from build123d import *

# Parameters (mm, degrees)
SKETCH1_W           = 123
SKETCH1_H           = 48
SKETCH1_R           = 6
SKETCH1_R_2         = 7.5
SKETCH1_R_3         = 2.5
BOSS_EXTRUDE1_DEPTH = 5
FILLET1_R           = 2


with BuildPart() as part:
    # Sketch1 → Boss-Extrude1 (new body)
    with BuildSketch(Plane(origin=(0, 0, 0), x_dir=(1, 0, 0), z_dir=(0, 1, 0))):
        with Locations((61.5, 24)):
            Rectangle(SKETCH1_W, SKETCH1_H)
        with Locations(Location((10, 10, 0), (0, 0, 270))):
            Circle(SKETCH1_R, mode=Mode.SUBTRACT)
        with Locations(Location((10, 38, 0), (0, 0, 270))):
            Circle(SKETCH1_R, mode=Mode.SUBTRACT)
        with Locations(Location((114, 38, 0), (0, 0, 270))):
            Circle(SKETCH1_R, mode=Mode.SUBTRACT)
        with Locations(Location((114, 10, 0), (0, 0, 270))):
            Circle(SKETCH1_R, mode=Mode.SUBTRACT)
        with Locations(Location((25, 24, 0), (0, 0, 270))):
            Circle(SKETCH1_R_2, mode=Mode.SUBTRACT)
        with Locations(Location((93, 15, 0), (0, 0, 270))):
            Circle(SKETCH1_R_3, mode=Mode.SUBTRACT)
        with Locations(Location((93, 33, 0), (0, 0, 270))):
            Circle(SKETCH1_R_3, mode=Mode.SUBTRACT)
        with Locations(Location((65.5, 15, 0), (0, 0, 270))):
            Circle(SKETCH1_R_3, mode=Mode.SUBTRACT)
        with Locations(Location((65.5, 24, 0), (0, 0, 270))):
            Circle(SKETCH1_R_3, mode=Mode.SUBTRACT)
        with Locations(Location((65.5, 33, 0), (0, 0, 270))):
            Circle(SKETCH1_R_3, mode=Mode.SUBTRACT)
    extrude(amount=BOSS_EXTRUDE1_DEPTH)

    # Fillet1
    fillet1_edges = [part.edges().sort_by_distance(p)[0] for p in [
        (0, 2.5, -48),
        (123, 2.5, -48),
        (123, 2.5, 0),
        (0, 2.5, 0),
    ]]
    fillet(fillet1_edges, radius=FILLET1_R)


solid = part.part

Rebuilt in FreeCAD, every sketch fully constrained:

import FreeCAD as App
import Part
import Sketcher

V = App.Vector


def edges_at(feature, points):
    """Names of the edges that pass closest to the given points."""
    edges = feature.Shape.Edges
    near = lambda p: min(range(len(edges)), key=lambda i: edges[i].distToShape(Part.Vertex(*p))[0])
    return sorted({f"Edge{near(p) + 1}" for p in points})

doc = App.newDocument("Part")
body = doc.addObject("PartDesign::Body", "Body")

sketch1 = body.newObject("Sketcher::SketchObject", "Sketch")
sketch1.AttachmentSupport = (doc.getObject("XZ_Plane"), [""])
sketch1.MapMode = "FlatFace"
sketch1.addGeometry(Part.LineSegment(V(0, -48, 0), V(0, 0, 0)), False)
sketch1.addGeometry(Part.LineSegment(V(0, 0, 0), V(123, 0, 0)), False)
sketch1.addGeometry(Part.LineSegment(V(123, 0, 0), V(123, -48, 0)), False)
sketch1.addGeometry(Part.LineSegment(V(123, -48, 0), V(0, -48, 0)), False)
sketch1.addGeometry(Part.Circle(V(10, -10, 0), V(0, 0, 1), 6), False)
sketch1.addGeometry(Part.Circle(V(114, -10, 0), V(0, 0, 1), 6), False)
sketch1.addGeometry(Part.Circle(V(65.5, -15, 0), V(0, 0, 1), 2.5), False)
sketch1.addGeometry(Part.Circle(V(93, -15, 0), V(0, 0, 1), 2.5), False)
sketch1.addGeometry(Part.Circle(V(25, -24, 0), V(0, 0, 1), 7.5), False)
sketch1.addGeometry(Part.Circle(V(10, -38, 0), V(0, 0, 1), 6), False)
sketch1.addGeometry(Part.Circle(V(65.5, -24, 0), V(0, 0, 1), 2.5), False)
sketch1.addGeometry(Part.Circle(V(65.5, -33, 0), V(0, 0, 1), 2.5), False)
sketch1.addGeometry(Part.Circle(V(93, -33, 0), V(0, 0, 1), 2.5), False)
sketch1.addGeometry(Part.Circle(V(114, -38, 0), V(0, 0, 1), 6), False)
sketch1.addConstraint(Sketcher.Constraint("Coincident", 0, 2, 1, 1))
sketch1.addConstraint(Sketcher.Constraint("Coincident", 1, 2, 2, 1))
sketch1.addConstraint(Sketcher.Constraint("Coincident", 2, 2, 3, 1))
sketch1.addConstraint(Sketcher.Constraint("Coincident", 3, 2, 0, 1))
sketch1.addConstraint(Sketcher.Constraint("Vertical", 0))
sketch1.addConstraint(Sketcher.Constraint("Horizontal", 1))
sketch1.addConstraint(Sketcher.Constraint("Vertical", 2))
sketch1.addConstraint(Sketcher.Constraint("Horizontal", 3))
sketch1.addConstraint(Sketcher.Constraint("Coincident", 0, 2, -1, 1))
sketch1.addConstraint(Sketcher.Constraint("Equal", 4, 5))
sketch1.addConstraint(Sketcher.Constraint("Equal", 6, 7))
sketch1.addConstraint(Sketcher.Constraint("Equal", 5, 9))
sketch1.addConstraint(Sketcher.Constraint("Equal", 7, 10))
sketch1.addConstraint(Sketcher.Constraint("Equal", 10, 11))
sketch1.addConstraint(Sketcher.Constraint("Equal", 11, 12))
sketch1.addConstraint(Sketcher.Constraint("Equal", 9, 13))
sketch1.addConstraint(Sketcher.Constraint("Horizontal", 4, 3, 5, 3))
sketch1.addConstraint(Sketcher.Constraint("Horizontal", 6, 3, 7, 3))
sketch1.addConstraint(Sketcher.Constraint("Horizontal", 8, 3, 10, 3))
sketch1.addConstraint(Sketcher.Constraint("Horizontal", 11, 3, 12, 3))
sketch1.addConstraint(Sketcher.Constraint("Horizontal", 9, 3, 13, 3))
sketch1.addConstraint(Sketcher.Constraint("Vertical", 4, 3, 9, 3))
sketch1.addConstraint(Sketcher.Constraint("Vertical", 6, 3, 10, 3))
sketch1.addConstraint(Sketcher.Constraint("Vertical", 10, 3, 11, 3))
sketch1.addConstraint(Sketcher.Constraint("Vertical", 7, 3, 12, 3))
sketch1.addConstraint(Sketcher.Constraint("Vertical", 5, 3, 13, 3))
sketch1.addConstraint(Sketcher.Constraint("Diameter", 4, 12.0))
sketch1.addConstraint(Sketcher.Constraint("Diameter", 6, 5.0))
sketch1.addConstraint(Sketcher.Constraint("Diameter", 8, 15.0))
sketch1.addConstraint(Sketcher.Constraint("DistanceX", 1, 1, 1, 2, 123.0))
sketch1.addConstraint(Sketcher.Constraint("DistanceY", 0, 1, 0, 2, 48.0))
sketch1.addConstraint(Sketcher.Constraint("DistanceX", -1, 1, 4, 3, 10.0))
sketch1.addConstraint(Sketcher.Constraint("DistanceY", 4, 3, -1, 1, 10.0))
sketch1.addConstraint(Sketcher.Constraint("DistanceX", -1, 1, 5, 3, 114.0))
sketch1.addConstraint(Sketcher.Constraint("DistanceY", 6, 3, -1, 1, 15.0))
sketch1.addConstraint(Sketcher.Constraint("DistanceX", -1, 1, 7, 3, 93.0))
sketch1.addConstraint(Sketcher.Constraint("DistanceX", -1, 1, 8, 3, 25.0))
sketch1.addConstraint(Sketcher.Constraint("DistanceY", 8, 3, -1, 1, 24.0))
sketch1.addConstraint(Sketcher.Constraint("DistanceY", 9, 3, -1, 1, 38.0))
sketch1.addConstraint(Sketcher.Constraint("DistanceY", 11, 3, -1, 1, 33.0))
sketch1.addConstraint(Sketcher.Constraint("DistanceX", -1, 1, 6, 3, 65.5))
pad1 = body.newObject("PartDesign::Pad", "Pad")
pad1.Profile = sketch1
pad1.Length = 5
pad1.Reversed = True
doc.recompute()

fillet = body.newObject("PartDesign::Fillet", "Fillet")
fillet.Base = (pad1, edges_at(pad1, [
    (0, 2.5, -48),
    (123, 2.5, -48),
    (123, 2.5, 0),
    (0, 2.5, 0),
]))
fillet.Radius = 2

doc.recompute()
